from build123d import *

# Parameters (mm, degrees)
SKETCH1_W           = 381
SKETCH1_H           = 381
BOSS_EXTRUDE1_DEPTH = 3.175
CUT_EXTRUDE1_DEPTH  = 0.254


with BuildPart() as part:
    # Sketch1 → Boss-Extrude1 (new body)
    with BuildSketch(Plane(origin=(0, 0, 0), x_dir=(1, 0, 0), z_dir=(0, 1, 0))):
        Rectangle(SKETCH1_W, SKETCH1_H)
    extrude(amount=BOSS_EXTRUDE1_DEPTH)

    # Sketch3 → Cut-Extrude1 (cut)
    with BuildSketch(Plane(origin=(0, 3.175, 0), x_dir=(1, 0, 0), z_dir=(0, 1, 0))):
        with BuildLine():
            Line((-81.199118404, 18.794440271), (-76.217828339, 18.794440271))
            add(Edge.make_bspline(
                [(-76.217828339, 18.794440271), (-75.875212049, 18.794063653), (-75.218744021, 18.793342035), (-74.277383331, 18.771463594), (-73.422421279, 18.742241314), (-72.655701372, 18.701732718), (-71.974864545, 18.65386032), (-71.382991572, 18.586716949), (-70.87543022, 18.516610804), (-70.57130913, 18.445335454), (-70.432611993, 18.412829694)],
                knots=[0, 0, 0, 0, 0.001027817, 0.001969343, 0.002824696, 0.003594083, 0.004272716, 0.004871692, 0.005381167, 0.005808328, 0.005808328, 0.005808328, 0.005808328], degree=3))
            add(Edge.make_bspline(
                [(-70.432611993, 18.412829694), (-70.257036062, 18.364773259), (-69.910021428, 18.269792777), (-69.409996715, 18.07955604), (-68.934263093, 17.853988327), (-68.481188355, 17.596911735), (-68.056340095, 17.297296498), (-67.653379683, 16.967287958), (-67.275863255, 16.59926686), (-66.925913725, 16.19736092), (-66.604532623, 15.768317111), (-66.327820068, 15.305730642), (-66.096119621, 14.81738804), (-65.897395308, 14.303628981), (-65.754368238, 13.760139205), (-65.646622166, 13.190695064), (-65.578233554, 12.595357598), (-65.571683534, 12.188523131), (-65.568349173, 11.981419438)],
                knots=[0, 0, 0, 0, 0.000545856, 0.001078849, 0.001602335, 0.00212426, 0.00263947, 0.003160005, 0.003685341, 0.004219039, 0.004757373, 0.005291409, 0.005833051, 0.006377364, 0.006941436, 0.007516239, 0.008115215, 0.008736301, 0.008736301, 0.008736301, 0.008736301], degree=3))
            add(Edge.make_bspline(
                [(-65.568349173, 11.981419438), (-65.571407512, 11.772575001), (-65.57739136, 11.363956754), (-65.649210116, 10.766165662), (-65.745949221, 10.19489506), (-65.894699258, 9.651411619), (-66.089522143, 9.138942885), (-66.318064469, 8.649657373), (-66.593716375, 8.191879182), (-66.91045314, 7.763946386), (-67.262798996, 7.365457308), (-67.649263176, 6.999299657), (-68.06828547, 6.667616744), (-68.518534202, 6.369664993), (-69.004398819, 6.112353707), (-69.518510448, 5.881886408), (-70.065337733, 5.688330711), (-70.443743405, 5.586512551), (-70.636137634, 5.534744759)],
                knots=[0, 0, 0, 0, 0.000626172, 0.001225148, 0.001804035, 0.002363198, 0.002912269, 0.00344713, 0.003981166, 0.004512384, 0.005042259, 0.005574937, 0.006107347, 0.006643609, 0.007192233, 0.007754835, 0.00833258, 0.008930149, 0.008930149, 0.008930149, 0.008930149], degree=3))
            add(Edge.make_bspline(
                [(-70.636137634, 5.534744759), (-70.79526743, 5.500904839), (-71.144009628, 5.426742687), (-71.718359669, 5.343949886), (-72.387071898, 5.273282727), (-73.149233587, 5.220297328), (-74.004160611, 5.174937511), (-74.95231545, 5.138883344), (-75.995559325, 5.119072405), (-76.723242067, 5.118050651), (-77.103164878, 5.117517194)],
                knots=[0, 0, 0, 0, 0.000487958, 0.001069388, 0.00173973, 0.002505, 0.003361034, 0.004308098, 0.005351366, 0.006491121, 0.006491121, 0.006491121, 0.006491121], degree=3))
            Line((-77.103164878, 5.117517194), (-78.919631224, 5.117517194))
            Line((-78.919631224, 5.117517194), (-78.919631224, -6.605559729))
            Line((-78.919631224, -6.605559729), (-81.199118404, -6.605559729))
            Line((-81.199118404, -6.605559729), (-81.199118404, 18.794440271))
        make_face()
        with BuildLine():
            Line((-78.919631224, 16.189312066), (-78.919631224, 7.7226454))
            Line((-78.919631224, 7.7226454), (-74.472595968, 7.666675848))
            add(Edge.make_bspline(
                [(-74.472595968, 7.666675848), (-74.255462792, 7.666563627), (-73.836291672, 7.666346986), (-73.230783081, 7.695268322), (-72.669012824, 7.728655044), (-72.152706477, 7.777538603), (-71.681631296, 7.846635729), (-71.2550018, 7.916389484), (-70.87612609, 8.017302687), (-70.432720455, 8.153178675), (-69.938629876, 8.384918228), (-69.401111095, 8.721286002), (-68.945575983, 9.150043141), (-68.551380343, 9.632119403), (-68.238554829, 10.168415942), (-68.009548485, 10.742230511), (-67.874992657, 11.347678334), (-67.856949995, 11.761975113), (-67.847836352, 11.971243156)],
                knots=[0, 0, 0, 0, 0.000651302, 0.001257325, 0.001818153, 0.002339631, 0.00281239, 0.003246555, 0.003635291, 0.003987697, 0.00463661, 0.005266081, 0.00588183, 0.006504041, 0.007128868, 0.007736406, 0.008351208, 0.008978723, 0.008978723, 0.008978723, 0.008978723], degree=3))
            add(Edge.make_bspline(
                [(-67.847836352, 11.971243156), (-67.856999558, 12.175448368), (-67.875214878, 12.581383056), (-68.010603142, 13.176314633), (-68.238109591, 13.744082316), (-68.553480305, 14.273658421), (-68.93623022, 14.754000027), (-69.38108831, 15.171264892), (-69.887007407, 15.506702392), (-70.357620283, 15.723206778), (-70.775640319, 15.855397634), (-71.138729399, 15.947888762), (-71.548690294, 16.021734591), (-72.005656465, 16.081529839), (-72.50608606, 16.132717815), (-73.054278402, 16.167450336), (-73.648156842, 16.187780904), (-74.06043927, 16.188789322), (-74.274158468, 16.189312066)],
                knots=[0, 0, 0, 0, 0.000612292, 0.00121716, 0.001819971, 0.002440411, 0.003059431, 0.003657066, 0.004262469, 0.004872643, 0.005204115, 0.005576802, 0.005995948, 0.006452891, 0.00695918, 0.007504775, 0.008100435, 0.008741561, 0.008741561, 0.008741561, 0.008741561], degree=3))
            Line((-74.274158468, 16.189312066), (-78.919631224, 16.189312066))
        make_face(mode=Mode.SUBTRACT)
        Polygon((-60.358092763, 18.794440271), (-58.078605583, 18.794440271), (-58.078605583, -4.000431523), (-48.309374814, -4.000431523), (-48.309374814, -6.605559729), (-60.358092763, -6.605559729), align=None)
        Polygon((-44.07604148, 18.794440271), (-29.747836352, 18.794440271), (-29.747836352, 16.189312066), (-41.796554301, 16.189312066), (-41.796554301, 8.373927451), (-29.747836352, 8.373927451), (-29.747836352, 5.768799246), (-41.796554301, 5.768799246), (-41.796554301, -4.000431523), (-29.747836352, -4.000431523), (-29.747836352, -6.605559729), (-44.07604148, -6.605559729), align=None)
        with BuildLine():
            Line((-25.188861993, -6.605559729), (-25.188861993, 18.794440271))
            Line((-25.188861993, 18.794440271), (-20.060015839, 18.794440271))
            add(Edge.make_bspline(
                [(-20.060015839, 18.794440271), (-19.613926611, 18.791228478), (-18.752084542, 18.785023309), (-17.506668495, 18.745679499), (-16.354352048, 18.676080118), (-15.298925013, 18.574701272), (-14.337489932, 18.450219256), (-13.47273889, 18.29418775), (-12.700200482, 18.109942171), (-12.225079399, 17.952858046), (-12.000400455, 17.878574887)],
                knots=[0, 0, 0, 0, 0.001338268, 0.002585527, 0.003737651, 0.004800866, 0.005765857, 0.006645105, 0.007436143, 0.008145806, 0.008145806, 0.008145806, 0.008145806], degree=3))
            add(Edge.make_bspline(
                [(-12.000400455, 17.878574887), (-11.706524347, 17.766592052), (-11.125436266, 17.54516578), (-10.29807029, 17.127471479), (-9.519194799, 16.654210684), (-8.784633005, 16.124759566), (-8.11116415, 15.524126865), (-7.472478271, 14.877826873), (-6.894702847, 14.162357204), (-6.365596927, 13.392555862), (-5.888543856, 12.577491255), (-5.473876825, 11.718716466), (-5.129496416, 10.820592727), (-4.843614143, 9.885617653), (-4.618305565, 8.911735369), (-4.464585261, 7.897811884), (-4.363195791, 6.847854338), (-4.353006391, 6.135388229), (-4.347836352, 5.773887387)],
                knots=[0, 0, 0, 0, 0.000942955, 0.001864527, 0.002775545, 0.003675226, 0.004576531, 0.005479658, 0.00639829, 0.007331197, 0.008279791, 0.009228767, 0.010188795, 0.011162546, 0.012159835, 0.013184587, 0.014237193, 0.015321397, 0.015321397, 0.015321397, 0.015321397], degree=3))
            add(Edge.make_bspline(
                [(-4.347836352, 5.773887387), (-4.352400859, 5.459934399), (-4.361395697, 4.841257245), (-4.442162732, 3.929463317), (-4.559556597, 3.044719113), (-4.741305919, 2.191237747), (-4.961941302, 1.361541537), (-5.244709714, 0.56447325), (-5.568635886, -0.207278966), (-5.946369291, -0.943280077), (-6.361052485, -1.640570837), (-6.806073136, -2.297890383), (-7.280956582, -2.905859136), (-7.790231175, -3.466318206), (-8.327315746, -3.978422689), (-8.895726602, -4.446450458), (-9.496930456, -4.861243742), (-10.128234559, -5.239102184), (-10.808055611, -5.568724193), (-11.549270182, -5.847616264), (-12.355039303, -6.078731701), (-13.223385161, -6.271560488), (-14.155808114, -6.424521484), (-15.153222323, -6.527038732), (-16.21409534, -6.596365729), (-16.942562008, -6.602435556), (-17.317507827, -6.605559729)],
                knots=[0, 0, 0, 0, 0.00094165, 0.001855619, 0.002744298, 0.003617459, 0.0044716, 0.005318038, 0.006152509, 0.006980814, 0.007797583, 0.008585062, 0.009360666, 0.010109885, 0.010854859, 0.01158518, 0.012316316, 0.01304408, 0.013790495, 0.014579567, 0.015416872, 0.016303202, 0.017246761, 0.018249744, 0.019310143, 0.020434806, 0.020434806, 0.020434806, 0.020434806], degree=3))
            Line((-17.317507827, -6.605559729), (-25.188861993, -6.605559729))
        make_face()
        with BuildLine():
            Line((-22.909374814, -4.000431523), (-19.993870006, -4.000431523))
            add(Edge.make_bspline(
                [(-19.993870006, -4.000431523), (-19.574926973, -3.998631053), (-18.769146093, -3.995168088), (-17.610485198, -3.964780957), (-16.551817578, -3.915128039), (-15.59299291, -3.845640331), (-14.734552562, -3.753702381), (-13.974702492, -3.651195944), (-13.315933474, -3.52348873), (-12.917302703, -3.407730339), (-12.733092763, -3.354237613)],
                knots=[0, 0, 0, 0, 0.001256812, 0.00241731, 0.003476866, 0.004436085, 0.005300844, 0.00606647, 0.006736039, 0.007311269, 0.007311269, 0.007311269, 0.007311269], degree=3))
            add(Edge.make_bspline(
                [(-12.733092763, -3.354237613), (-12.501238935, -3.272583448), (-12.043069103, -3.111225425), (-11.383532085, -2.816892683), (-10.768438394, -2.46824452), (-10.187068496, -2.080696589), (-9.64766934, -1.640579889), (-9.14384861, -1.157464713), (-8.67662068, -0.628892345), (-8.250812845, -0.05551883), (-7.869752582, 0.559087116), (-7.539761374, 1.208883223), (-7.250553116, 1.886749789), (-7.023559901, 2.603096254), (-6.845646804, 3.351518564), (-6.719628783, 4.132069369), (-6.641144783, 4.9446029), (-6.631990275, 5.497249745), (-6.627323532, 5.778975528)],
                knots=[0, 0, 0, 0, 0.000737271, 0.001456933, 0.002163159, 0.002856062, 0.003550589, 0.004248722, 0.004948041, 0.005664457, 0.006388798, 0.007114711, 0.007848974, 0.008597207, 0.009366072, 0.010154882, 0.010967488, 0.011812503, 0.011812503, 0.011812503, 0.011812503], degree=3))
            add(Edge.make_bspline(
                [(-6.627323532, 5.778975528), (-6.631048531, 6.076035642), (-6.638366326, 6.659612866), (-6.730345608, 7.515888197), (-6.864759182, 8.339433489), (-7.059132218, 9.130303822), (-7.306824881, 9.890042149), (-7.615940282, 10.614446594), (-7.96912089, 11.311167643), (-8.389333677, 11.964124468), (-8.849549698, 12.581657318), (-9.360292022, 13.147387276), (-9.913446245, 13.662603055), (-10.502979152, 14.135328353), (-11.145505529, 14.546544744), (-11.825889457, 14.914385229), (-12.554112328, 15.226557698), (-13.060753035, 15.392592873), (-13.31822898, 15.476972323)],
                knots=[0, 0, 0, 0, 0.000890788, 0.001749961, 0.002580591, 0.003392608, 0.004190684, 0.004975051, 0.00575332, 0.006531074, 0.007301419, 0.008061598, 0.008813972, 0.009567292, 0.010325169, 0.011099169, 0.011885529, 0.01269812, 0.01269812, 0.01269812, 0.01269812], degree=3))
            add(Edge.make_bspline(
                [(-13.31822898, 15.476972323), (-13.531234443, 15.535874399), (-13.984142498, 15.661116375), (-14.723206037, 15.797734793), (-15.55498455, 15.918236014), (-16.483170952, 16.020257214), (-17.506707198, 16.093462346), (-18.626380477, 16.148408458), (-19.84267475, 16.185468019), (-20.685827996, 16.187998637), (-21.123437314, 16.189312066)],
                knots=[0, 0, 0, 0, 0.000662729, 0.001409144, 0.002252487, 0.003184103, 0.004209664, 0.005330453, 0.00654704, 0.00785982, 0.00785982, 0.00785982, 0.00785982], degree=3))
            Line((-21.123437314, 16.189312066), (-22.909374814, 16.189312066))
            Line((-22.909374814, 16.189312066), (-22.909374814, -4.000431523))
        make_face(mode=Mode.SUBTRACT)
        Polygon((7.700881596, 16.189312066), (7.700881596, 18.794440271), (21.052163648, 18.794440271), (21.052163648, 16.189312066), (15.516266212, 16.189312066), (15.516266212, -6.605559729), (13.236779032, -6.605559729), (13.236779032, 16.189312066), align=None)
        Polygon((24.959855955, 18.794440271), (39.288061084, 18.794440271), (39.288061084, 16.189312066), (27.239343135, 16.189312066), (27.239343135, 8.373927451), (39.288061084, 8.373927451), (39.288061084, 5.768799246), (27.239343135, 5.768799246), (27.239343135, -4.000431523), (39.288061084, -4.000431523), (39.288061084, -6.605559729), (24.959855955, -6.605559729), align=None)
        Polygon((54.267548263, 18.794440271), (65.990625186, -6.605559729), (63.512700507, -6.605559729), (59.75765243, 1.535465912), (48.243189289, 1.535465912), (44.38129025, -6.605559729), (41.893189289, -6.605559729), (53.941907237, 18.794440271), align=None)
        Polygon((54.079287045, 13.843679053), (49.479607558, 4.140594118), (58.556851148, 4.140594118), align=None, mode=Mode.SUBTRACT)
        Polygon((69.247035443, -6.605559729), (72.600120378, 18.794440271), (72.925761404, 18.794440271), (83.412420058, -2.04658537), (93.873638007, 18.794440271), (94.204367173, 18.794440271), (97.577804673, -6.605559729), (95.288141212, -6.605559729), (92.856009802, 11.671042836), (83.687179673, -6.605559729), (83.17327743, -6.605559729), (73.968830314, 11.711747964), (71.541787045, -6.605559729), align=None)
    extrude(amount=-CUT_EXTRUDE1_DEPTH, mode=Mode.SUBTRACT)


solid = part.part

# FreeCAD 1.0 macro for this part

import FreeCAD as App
import Part
import Sketcher
Q = App.Units.Quantity


def add_polygon(sketch, points):
    """Adds a closed chain of lines whose ends are joined by coincident constraints."""
    first, n = sketch.GeometryCount, len(points)
    for a, b in zip(points, points[1:] + points[:1]):
        sketch.addGeometry(Part.LineSegment(App.Vector(*a, 0), App.Vector(*b, 0)), False)
    for i in range(n):
        sketch.addConstraint(Sketcher.Constraint("Coincident", first + i, 2, first + (i + 1) % n, 1))

doc = App.newDocument("Part")
params = doc.addObject("Spreadsheet::Sheet", "Params")
for row, (alias, value) in enumerate([
    ("sketch1_width", "15 in"),
    ("pad1_length", "0.125 in"),
    ("pocket1_length", "0.01 in"),
], start=1):
    params.set(f"A{row}", alias)
    params.set(f"B{row}", "=" + value)
    params.setAlias(f"B{row}", alias)

body = doc.addObject("PartDesign::Body", "Body")

sketch1 = doc.addObject("Sketcher::SketchObject", "Sketch")
body.addObject(sketch1)
sketch1.AttachmentSupport = (doc.XZ_Plane, [""])
sketch1.MapMode = "FlatFace"
add_polygon(sketch1, [(-190, -190), (-190, 190), (190, 190), (190, -190)])
sketch1.addConstraint([
    Sketcher.Constraint("Vertical", 0),
    Sketcher.Constraint("Horizontal", 1),
    Sketcher.Constraint("Vertical", 2),
    Sketcher.Constraint("Horizontal", 3),
    Sketcher.Constraint("Symmetric", 0, 2, 2, 2, -1, 1),
    Sketcher.Constraint("Equal", 3, 0),
    Sketcher.Constraint("DistanceX", 1, 1, 1, 2, Q("15 in")),
])
sketch1.setExpression("Constraints[10]", "Params.sketch1_width")
pad1 = doc.addObject("PartDesign::Pad", "Pad")
body.addObject(pad1)
pad1.Profile = sketch1
pad1.setExpression("Length", "Params.pad1_length")
pad1.Reversed = True

sketch2 = doc.addObject("Sketcher::SketchObject", "Sketch001")
body.addObject(sketch2)
sketch2.AttachmentSupport = (doc.XZ_Plane, [""])
sketch2.MapMode = "FlatFace"
sketch2.AttachmentOffset = App.Placement(App.Vector(0, 0, -0.125 * 25.4), App.Rotation())
sketch2.addGeometry(Part.LineSegment(App.Vector(-76.217828, -18.79444, 0), App.Vector(-81.199118, -18.79444, 0)), False)
sketch2.addGeometry(Part.LineSegment(App.Vector(-81.199118, -18.79444, 0), App.Vector(-81.199118, 6.60556, 0)), False)
sketch2.addGeometry(Part.LineSegment(App.Vector(-81.199118, 6.60556, 0), App.Vector(-78.919631, 6.60556, 0)), False)
sketch2.addGeometry(Part.LineSegment(App.Vector(-78.919631, 6.60556, 0), App.Vector(-78.919631, -5.117517, 0)), False)
sketch2.addGeometry(Part.LineSegment(App.Vector(-78.919631, -5.117517, 0), App.Vector(-77.103165, -5.117517, 0)), False)
sketch2.addGeometry(Part.BSplineCurve([App.Vector(-70.636138, -5.534745, 0), App.Vector(-70.795267, -5.500905, 0), App.Vector(-71.14401, -5.426743, 0), App.Vector(-71.71836, -5.34395, 0), App.Vector(-72.387072, -5.273283, 0), App.Vector(-73.149234, -5.220297, 0), App.Vector(-74.004161, -5.174938, 0), App.Vector(-74.952315, -5.138883, 0), App.Vector(-75.995559, -5.119072, 0), App.Vector(-76.723242, -5.118051, 0), App.Vector(-77.103165, -5.117517, 0)], [4, 1, 1, 1, 1, 1, 1, 1, 4], [0, 0.000487958, 0.001069388, 0.00173973, 0.002505, 0.003361034, 0.004308098, 0.005351366, 0.006491121], False, 3, [1, 1, 1, 1, 1, 1, 1, 1, 1, 1, 1], False), False)
sketch2.addGeometry(Part.BSplineCurve([App.Vector(-65.568349, -11.981419, 0), App.Vector(-65.571408, -11.772575, 0), App.Vector(-65.577391, -11.363957, 0), App.Vector(-65.64921, -10.766166, 0), App.Vector(-65.745949, -10.194895, 0), App.Vector(-65.894699, -9.651412, 0), App.Vector(-66.089522, -9.138943, 0), App.Vector(-66.318064, -8.649657, 0), App.Vector(-66.593716, -8.191879, 0), App.Vector(-66.910453, -7.763946, 0), App.Vector(-67.262799, -7.365457, 0), App.Vector(-67.649263, -6.9993, 0), App.Vector(-68.068285, -6.667617, 0), App.Vector(-68.518534, -6.369665, 0), App.Vector(-69.004399, -6.112354, 0), App.Vector(-69.51851, -5.881886, 0), App.Vector(-70.065338, -5.688331, 0), App.Vector(-70.443743, -5.586513, 0), App.Vector(-70.636138, -5.534745, 0)], [4, 1, 1, 1, 1, 1, 1, 1, 1, 1, 1, 1, 1, 1, 1, 1, 4], [0, 0.000626172, 0.001225148, 0.001804035, 0.002363198, 0.002912269, 0.00344713, 0.003981166, 0.004512384, 0.005042259, 0.005574937, 0.006107347, 0.006643609, 0.007192233, 0.007754835, 0.00833258, 0.008930149], False, 3, [1, 1, 1, 1, 1, 1, 1, 1, 1, 1, 1, 1, 1, 1, 1, 1, 1, 1, 1], False), False)
sketch2.addGeometry(Part.BSplineCurve([App.Vector(-70.432612, -18.41283, 0), App.Vector(-70.257036, -18.364773, 0), App.Vector(-69.910021, -18.269793, 0), App.Vector(-69.409997, -18.079556, 0), App.Vector(-68.934263, -17.853988, 0), App.Vector(-68.481188, -17.596912, 0), App.Vector(-68.05634, -17.297296, 0), App.Vector(-67.65338, -16.967288, 0), App.Vector(-67.275863, -16.599267, 0), App.Vector(-66.925914, -16.197361, 0), App.Vector(-66.604533, -15.768317, 0), App.Vector(-66.32782, -15.305731, 0), App.Vector(-66.09612, -14.817388, 0), App.Vector(-65.897395, -14.303629, 0), App.Vector(-65.754368, -13.760139, 0), App.Vector(-65.646622, -13.190695, 0), App.Vector(-65.578234, -12.595358, 0), App.Vector(-65.571684, -12.188523, 0), App.Vector(-65.568349, -11.981419, 0)], [4, 1, 1, 1, 1, 1, 1, 1, 1, 1, 1, 1, 1, 1, 1, 1, 4], [0, 0.000545856, 0.001078849, 0.001602335, 0.00212426, 0.00263947, 0.003160005, 0.003685341, 0.004219039, 0.004757373, 0.005291409, 0.005833051, 0.006377364, 0.006941436, 0.007516239, 0.008115215, 0.008736301], False, 3, [1, 1, 1, 1, 1, 1, 1, 1, 1, 1, 1, 1, 1, 1, 1, 1, 1, 1, 1], False), False)
sketch2.addGeometry(Part.BSplineCurve([App.Vector(-76.217828, -18.79444, 0), App.Vector(-75.875212, -18.794064, 0), App.Vector(-75.218744, -18.793342, 0), App.Vector(-74.277383, -18.771464, 0), App.Vector(-73.422421, -18.742241, 0), App.Vector(-72.655701, -18.701733, 0), App.Vector(-71.974865, -18.65386, 0), App.Vector(-71.382992, -18.586717, 0), App.Vector(-70.87543, -18.516611, 0), App.Vector(-70.571309, -18.445335, 0), App.Vector(-70.432612, -18.41283, 0)], [4, 1, 1, 1, 1, 1, 1, 1, 4], [0, 0.001027817, 0.001969343, 0.002824696, 0.003594083, 0.004272716, 0.004871692, 0.005381167, 0.005808328], False, 3, [1, 1, 1, 1, 1, 1, 1, 1, 1, 1, 1], False), False)
sketch2.addGeometry(Part.LineSegment(App.Vector(-78.919631, -16.189312, 0), App.Vector(-74.274158, -16.189312, 0)), False)
sketch2.addGeometry(Part.BSplineCurve([App.Vector(-67.847836, -11.971243, 0), App.Vector(-67.857, -12.175448, 0), App.Vector(-67.875215, -12.581383, 0), App.Vector(-68.010603, -13.176315, 0), App.Vector(-68.23811, -13.744082, 0), App.Vector(-68.55348, -14.273658, 0), App.Vector(-68.93623, -14.754, 0), App.Vector(-69.381088, -15.171265, 0), App.Vector(-69.887007, -15.506702, 0), App.Vector(-70.35762, -15.723207, 0), App.Vector(-70.77564, -15.855398, 0), App.Vector(-71.138729, -15.947889, 0), App.Vector(-71.54869, -16.021735, 0), App.Vector(-72.005656, -16.08153, 0), App.Vector(-72.506086, -16.132718, 0), App.Vector(-73.054278, -16.16745, 0), App.Vector(-73.648157, -16.187781, 0), App.Vector(-74.060439, -16.188789, 0), App.Vector(-74.274158, -16.189312, 0)], [4, 1, 1, 1, 1, 1, 1, 1, 1, 1, 1, 1, 1, 1, 1, 1, 4], [0, 0.000612292, 0.00121716, 0.001819971, 0.002440411, 0.003059431, 0.003657066, 0.004262469, 0.004872643, 0.005204115, 0.005576802, 0.005995948, 0.006452891, 0.00695918, 0.007504775, 0.008100435, 0.008741561], False, 3, [1, 1, 1, 1, 1, 1, 1, 1, 1, 1, 1, 1, 1, 1, 1, 1, 1, 1, 1], False), False)
sketch2.addGeometry(Part.BSplineCurve([App.Vector(-74.472596, -7.666676, 0), App.Vector(-74.255463, -7.666564, 0), App.Vector(-73.836292, -7.666347, 0), App.Vector(-73.230783, -7.695268, 0), App.Vector(-72.669013, -7.728655, 0), App.Vector(-72.152706, -7.777539, 0), App.Vector(-71.681631, -7.846636, 0), App.Vector(-71.255002, -7.916389, 0), App.Vector(-70.876126, -8.017303, 0), App.Vector(-70.43272, -8.153179, 0), App.Vector(-69.93863, -8.384918, 0), App.Vector(-69.401111, -8.721286, 0), App.Vector(-68.945576, -9.150043, 0), App.Vector(-68.55138, -9.632119, 0), App.Vector(-68.238555, -10.168416, 0), App.Vector(-68.009548, -10.742231, 0), App.Vector(-67.874993, -11.347678, 0), App.Vector(-67.85695, -11.761975, 0), App.Vector(-67.847836, -11.971243, 0)], [4, 1, 1, 1, 1, 1, 1, 1, 1, 1, 1, 1, 1, 1, 1, 1, 4], [0, 0.000651302, 0.001257325, 0.001818153, 0.002339631, 0.00281239, 0.003246555, 0.003635291, 0.003987697, 0.00463661, 0.005266081, 0.00588183, 0.006504041, 0.007128868, 0.007736406, 0.008351208, 0.008978723], False, 3, [1, 1, 1, 1, 1, 1, 1, 1, 1, 1, 1, 1, 1, 1, 1, 1, 1, 1, 1], False), False)
sketch2.addGeometry(Part.LineSegment(App.Vector(-74.472596, -7.666676, 0), App.Vector(-78.919631, -7.722645, 0)), False)
sketch2.addGeometry(Part.LineSegment(App.Vector(-78.919631, -7.722645, 0), App.Vector(-78.919631, -16.189312, 0)), False)
add_polygon(sketch2, [(-58.078606, -18.79444), (-60.358093, -18.79444), (-60.358093, 6.60556), (-48.309375, 6.60556), (-48.309375, 4.000432), (-58.078606, 4.000432)])
add_polygon(sketch2, [(-29.747836, -18.79444), (-44.076041, -18.79444), (-44.076041, 6.60556), (-29.747836, 6.60556), (-29.747836, 4.000432), (-41.796554, 4.000432), (-41.796554, -5.768799), (-29.747836, -5.768799), (-29.747836, -8.373927), (-41.796554, -8.373927), (-41.796554, -16.189312), (-29.747836, -16.189312)])
sketch2.addGeometry(Part.LineSegment(App.Vector(-25.188862, -18.79444, 0), App.Vector(-25.188862, 6.60556, 0)), False)
sketch2.addGeometry(Part.LineSegment(App.Vector(-25.188862, 6.60556, 0), App.Vector(-17.317508, 6.60556, 0)), False)
sketch2.addGeometry(Part.BSplineCurve([App.Vector(-4.347836, -5.773887, 0), App.Vector(-4.352401, -5.459934, 0), App.Vector(-4.361396, -4.841257, 0), App.Vector(-4.442163, -3.929463, 0), App.Vector(-4.559557, -3.044719, 0), App.Vector(-4.741306, -2.191238, 0), App.Vector(-4.961941, -1.361542, 0), App.Vector(-5.24471, -0.564473, 0), App.Vector(-5.568636, 0.207279, 0), App.Vector(-5.946369, 0.94328, 0), App.Vector(-6.361052, 1.640571, 0), App.Vector(-6.806073, 2.29789, 0), App.Vector(-7.280957, 2.905859, 0), App.Vector(-7.790231, 3.466318, 0), App.Vector(-8.327316, 3.978423, 0), App.Vector(-8.895727, 4.44645, 0), App.Vector(-9.49693, 4.861244, 0), App.Vector(-10.128235, 5.239102, 0), App.Vector(-10.808056, 5.568724, 0), App.Vector(-11.54927, 5.847616, 0), App.Vector(-12.355039, 6.078732, 0), App.Vector(-13.223385, 6.27156, 0), App.Vector(-14.155808, 6.424521, 0), App.Vector(-15.153222, 6.527039, 0), App.Vector(-16.214095, 6.596366, 0), App.Vector(-16.942562, 6.602436, 0), App.Vector(-17.317508, 6.60556, 0)], [4, 1, 1, 1, 1, 1, 1, 1, 1, 1, 1, 1, 1, 1, 1, 1, 1, 1, 1, 1, 1, 1, 1, 1, 4], [0, 0.00094165, 0.001855619, 0.002744298, 0.003617459, 0.0044716, 0.005318038, 0.006152509, 0.006980814, 0.007797583, 0.008585062, 0.009360666, 0.010109885, 0.010854859, 0.01158518, 0.012316316, 0.01304408, 0.013790495, 0.014579567, 0.015416872, 0.016303202, 0.017246761, 0.018249744, 0.019310143, 0.020434806], False, 3, [1, 1, 1, 1, 1, 1, 1, 1, 1, 1, 1, 1, 1, 1, 1, 1, 1, 1, 1, 1, 1, 1, 1, 1, 1, 1, 1], False), False)
sketch2.addGeometry(Part.BSplineCurve([App.Vector(-12.0004, -17.878575, 0), App.Vector(-11.706524, -17.766592, 0), App.Vector(-11.125436, -17.545166, 0), App.Vector(-10.29807, -17.127471, 0), App.Vector(-9.519195, -16.654211, 0), App.Vector(-8.784633, -16.12476, 0), App.Vector(-8.111164, -15.524127, 0), App.Vector(-7.472478, -14.877827, 0), App.Vector(-6.894703, -14.162357, 0), App.Vector(-6.365597, -13.392556, 0), App.Vector(-5.888544, -12.577491, 0), App.Vector(-5.473877, -11.718716, 0), App.Vector(-5.129496, -10.820593, 0), App.Vector(-4.843614, -9.885618, 0), App.Vector(-4.618306, -8.911735, 0), App.Vector(-4.464585, -7.897812, 0), App.Vector(-4.363196, -6.847854, 0), App.Vector(-4.353006, -6.135388, 0), App.Vector(-4.347836, -5.773887, 0)], [4, 1, 1, 1, 1, 1, 1, 1, 1, 1, 1, 1, 1, 1, 1, 1, 4], [0, 0.000942955, 0.001864527, 0.002775545, 0.003675226, 0.004576531, 0.005479658, 0.00639829, 0.007331197, 0.008279791, 0.009228767, 0.010188795, 0.011162546, 0.012159835, 0.013184587, 0.014237193, 0.015321397], False, 3, [1, 1, 1, 1, 1, 1, 1, 1, 1, 1, 1, 1, 1, 1, 1, 1, 1, 1, 1], False), False)
sketch2.addGeometry(Part.BSplineCurve([App.Vector(-20.060016, -18.79444, 0), App.Vector(-19.613927, -18.791228, 0), App.Vector(-18.752085, -18.785023, 0), App.Vector(-17.506668, -18.745679, 0), App.Vector(-16.354352, -18.67608, 0), App.Vector(-15.298925, -18.574701, 0), App.Vector(-14.33749, -18.450219, 0), App.Vector(-13.472739, -18.294188, 0), App.Vector(-12.7002, -18.109942, 0), App.Vector(-12.225079, -17.952858, 0), App.Vector(-12.0004, -17.878575, 0)], [4, 1, 1, 1, 1, 1, 1, 1, 4], [0, 0.001338268, 0.002585527, 0.003737651, 0.004800866, 0.005765857, 0.006645105, 0.007436143, 0.008145806], False, 3, [1, 1, 1, 1, 1, 1, 1, 1, 1, 1, 1], False), False)
sketch2.addGeometry(Part.LineSegment(App.Vector(-20.060016, -18.79444, 0), App.Vector(-25.188862, -18.79444, 0)), False)
sketch2.addGeometry(Part.LineSegment(App.Vector(-22.909375, 4.000432, 0), App.Vector(-22.909375, -16.189312, 0)), False)
sketch2.addGeometry(Part.LineSegment(App.Vector(-22.909375, -16.189312, 0), App.Vector(-21.123437, -16.189312, 0)), False)
sketch2.addGeometry(Part.BSplineCurve([App.Vector(-13.318229, -15.476972, 0), App.Vector(-13.531234, -15.535874, 0), App.Vector(-13.984142, -15.661116, 0), App.Vector(-14.723206, -15.797735, 0), App.Vector(-15.554985, -15.918236, 0), App.Vector(-16.483171, -16.020257, 0), App.Vector(-17.506707, -16.093462, 0), App.Vector(-18.62638, -16.148408, 0), App.Vector(-19.842675, -16.185468, 0), App.Vector(-20.685828, -16.187999, 0), App.Vector(-21.123437, -16.189312, 0)], [4, 1, 1, 1, 1, 1, 1, 1, 4], [0, 0.000662729, 0.001409144, 0.002252487, 0.003184103, 0.004209664, 0.005330453, 0.00654704, 0.00785982], False, 3, [1, 1, 1, 1, 1, 1, 1, 1, 1, 1, 1], False), False)
sketch2.addGeometry(Part.BSplineCurve([App.Vector(-6.627324, -5.778976, 0), App.Vector(-6.631049, -6.076036, 0), App.Vector(-6.638366, -6.659613, 0), App.Vector(-6.730346, -7.515888, 0), App.Vector(-6.864759, -8.339433, 0), App.Vector(-7.059132, -9.130304, 0), App.Vector(-7.306825, -9.890042, 0), App.Vector(-7.61594, -10.614447, 0), App.Vector(-7.969121, -11.311168, 0), App.Vector(-8.389334, -11.964124, 0), App.Vector(-8.84955, -12.581657, 0), App.Vector(-9.360292, -13.147387, 0), App.Vector(-9.913446, -13.662603, 0), App.Vector(-10.502979, -14.135328, 0), App.Vector(-11.145506, -14.546545, 0), App.Vector(-11.825889, -14.914385, 0), App.Vector(-12.554112, -15.226558, 0), App.Vector(-13.060753, -15.392593, 0), App.Vector(-13.318229, -15.476972, 0)], [4, 1, 1, 1, 1, 1, 1, 1, 1, 1, 1, 1, 1, 1, 1, 1, 4], [0, 0.000890788, 0.001749961, 0.002580591, 0.003392608, 0.004190684, 0.004975051, 0.00575332, 0.006531074, 0.007301419, 0.008061598, 0.008813972, 0.009567292, 0.010325169, 0.011099169, 0.011885529, 0.01269812], False, 3, [1, 1, 1, 1, 1, 1, 1, 1, 1, 1, 1, 1, 1, 1, 1, 1, 1, 1, 1], False), False)
sketch2.addGeometry(Part.BSplineCurve([App.Vector(-12.733093, 3.354238, 0), App.Vector(-12.501239, 3.272583, 0), App.Vector(-12.043069, 3.111225, 0), App.Vector(-11.383532, 2.816893, 0), App.Vector(-10.768438, 2.468245, 0), App.Vector(-10.187068, 2.080697, 0), App.Vector(-9.647669, 1.64058, 0), App.Vector(-9.143849, 1.157465, 0), App.Vector(-8.676621, 0.628892, 0), App.Vector(-8.250813, 0.055519, 0), App.Vector(-7.869753, -0.559087, 0), App.Vector(-7.539761, -1.208883, 0), App.Vector(-7.250553, -1.88675, 0), App.Vector(-7.02356, -2.603096, 0), App.Vector(-6.845647, -3.351519, 0), App.Vector(-6.719629, -4.132069, 0), App.Vector(-6.641145, -4.944603, 0), App.Vector(-6.63199, -5.49725, 0), App.Vector(-6.627324, -5.778976, 0)], [4, 1, 1, 1, 1, 1, 1, 1, 1, 1, 1, 1, 1, 1, 1, 1, 4], [0, 0.000737271, 0.001456933, 0.002163159, 0.002856062, 0.003550589, 0.004248722, 0.004948041, 0.005664457, 0.006388798, 0.007114711, 0.007848974, 0.008597207, 0.009366072, 0.010154882, 0.010967488, 0.011812503], False, 3, [1, 1, 1, 1, 1, 1, 1, 1, 1, 1, 1, 1, 1, 1, 1, 1, 1, 1, 1], False), False)
sketch2.addGeometry(Part.BSplineCurve([App.Vector(-19.99387, 4.000432, 0), App.Vector(-19.574927, 3.998631, 0), App.Vector(-18.769146, 3.995168, 0), App.Vector(-17.610485, 3.964781, 0), App.Vector(-16.551818, 3.915128, 0), App.Vector(-15.592993, 3.84564, 0), App.Vector(-14.734553, 3.753702, 0), App.Vector(-13.974702, 3.651196, 0), App.Vector(-13.315933, 3.523489, 0), App.Vector(-12.917303, 3.40773, 0), App.Vector(-12.733093, 3.354238, 0)], [4, 1, 1, 1, 1, 1, 1, 1, 4], [0, 0.001256812, 0.00241731, 0.003476866, 0.004436085, 0.005300844, 0.00606647, 0.006736039, 0.007311269], False, 3, [1, 1, 1, 1, 1, 1, 1, 1, 1, 1, 1], False), False)
sketch2.addGeometry(Part.LineSegment(App.Vector(-19.99387, 4.000432, 0), App.Vector(-22.909375, 4.000432, 0)), False)
add_polygon(sketch2, [(7.700882, -18.79444), (7.700882, -16.189312), (13.236779, -16.189312), (13.236779, 6.60556), (15.516266, 6.60556), (15.516266, -16.189312), (21.052164, -16.189312), (21.052164, -18.79444)])
add_polygon(sketch2, [(39.288061, -18.79444), (24.959856, -18.79444), (24.959856, 6.60556), (39.288061, 6.60556), (39.288061, 4.000432), (27.239343, 4.000432), (27.239343, -5.768799), (39.288061, -5.768799), (39.288061, -8.373927), (27.239343, -8.373927), (27.239343, -16.189312), (39.288061, -16.189312)])
add_polygon(sketch2, [(65.990625, 6.60556), (54.267548, -18.79444), (53.941907, -18.79444), (41.893189, 6.60556), (44.38129, 6.60556), (48.243189, -1.535466), (59.757652, -1.535466), (63.512701, 6.60556)])
add_polygon(sketch2, [(54.079287, -13.843679), (58.556851, -4.140594), (49.479608, -4.140594)])
add_polygon(sketch2, [(72.60012, -18.79444), (69.247035, 6.60556), (71.541787, 6.60556), (73.96883, -11.711748), (83.173277, 6.60556), (83.68718, 6.60556), (92.85601, -11.671043), (95.288141, 6.60556), (97.577805, 6.60556), (94.204367, -18.79444), (93.873638, -18.79444), (83.41242, 2.046585), (72.925761, -18.79444)])
sketch2.addConstraint([
    Sketcher.Constraint("Block", 5),
    Sketcher.Constraint("Block", 6),
    Sketcher.Constraint("Block", 7),
    Sketcher.Constraint("Block", 8),
    Sketcher.Constraint("Block", 10),
    Sketcher.Constraint("Block", 11),
    Sketcher.Constraint("Block", 34),
    Sketcher.Constraint("Block", 35),
    Sketcher.Constraint("Block", 36),
    Sketcher.Constraint("Block", 40),
    Sketcher.Constraint("Block", 41),
    Sketcher.Constraint("Block", 42),
    Sketcher.Constraint("Block", 43),
    Sketcher.Constraint("Coincident", 0, 2, 1, 1),
    Sketcher.Constraint("Coincident", 1, 2, 2, 1),
    Sketcher.Constraint("Coincident", 2, 2, 3, 1),
    Sketcher.Constraint("Coincident", 3, 2, 4, 1),
    Sketcher.Constraint("Coincident", 4, 2, 5, 2),
    Sketcher.Constraint("Coincident", 8, 1, 0, 1),
    Sketcher.Constraint("Coincident", 9, 2, 10, 2),
    Sketcher.Constraint("Coincident", 11, 1, 12, 1),
    Sketcher.Constraint("Coincident", 12, 2, 13, 1),
    Sketcher.Constraint("Coincident", 13, 2, 9, 1),
    Sketcher.Constraint("Coincident", 32, 2, 33, 1),
    Sketcher.Constraint("Coincident", 33, 2, 34, 2),
    Sketcher.Constraint("Coincident", 36, 1, 37, 1),
    Sketcher.Constraint("Coincident", 37, 2, 32, 1),
    Sketcher.Constraint("Coincident", 38, 2, 39, 1),
    Sketcher.Constraint("Coincident", 39, 2, 40, 2),
    Sketcher.Constraint("Coincident", 43, 1, 44, 1),
    Sketcher.Constraint("Coincident", 44, 2, 38, 1),
    Sketcher.Constraint("Horizontal", 0),
    Sketcher.Constraint("Vertical", 1),
    Sketcher.Constraint("Horizontal", 2),
    Sketcher.Constraint("Vertical", 3),
    Sketcher.Constraint("Horizontal", 4),
    Sketcher.Constraint("Horizontal", 9),
    Sketcher.Constraint("Vertical", 13),
    Sketcher.Constraint("Horizontal", 14),
    Sketcher.Constraint("Vertical", 15),
    Sketcher.Constraint("Horizontal", 16),
    Sketcher.Constraint("Vertical", 17),
    Sketcher.Constraint("Horizontal", 18),
    Sketcher.Constraint("Vertical", 19),
    Sketcher.Constraint("Horizontal", 20),
    Sketcher.Constraint("Vertical", 21),
    Sketcher.Constraint("Horizontal", 22),
    Sketcher.Constraint("Vertical", 23),
    Sketcher.Constraint("Horizontal", 24),
    Sketcher.Constraint("Vertical", 25),
    Sketcher.Constraint("Horizontal", 26),
    Sketcher.Constraint("Vertical", 27),
    Sketcher.Constraint("Horizontal", 28),
    Sketcher.Constraint("Vertical", 29),
    Sketcher.Constraint("Horizontal", 30),
    Sketcher.Constraint("Vertical", 31),
    Sketcher.Constraint("Vertical", 32),
    Sketcher.Constraint("Horizontal", 33),
    Sketcher.Constraint("Horizontal", 37),
    Sketcher.Constraint("Vertical", 38),
    Sketcher.Constraint("Horizontal", 39),
    Sketcher.Constraint("Horizontal", 44),
    Sketcher.Constraint("Vertical", 45),
    Sketcher.Constraint("Horizontal", 46),
    Sketcher.Constraint("Vertical", 47),
    Sketcher.Constraint("Horizontal", 48),
    Sketcher.Constraint("Vertical", 49),
    Sketcher.Constraint("Horizontal", 50),
    Sketcher.Constraint("Vertical", 51),
    Sketcher.Constraint("Horizontal", 52),
    Sketcher.Constraint("Horizontal", 53),
    Sketcher.Constraint("Vertical", 54),
    Sketcher.Constraint("Horizontal", 55),
    Sketcher.Constraint("Vertical", 56),
    Sketcher.Constraint("Horizontal", 57),
    Sketcher.Constraint("Vertical", 58),
    Sketcher.Constraint("Horizontal", 59),
    Sketcher.Constraint("Vertical", 60),
    Sketcher.Constraint("Horizontal", 61),
    Sketcher.Constraint("Vertical", 62),
    Sketcher.Constraint("Horizontal", 63),
    Sketcher.Constraint("Vertical", 64),
    Sketcher.Constraint("Horizontal", 66),
    Sketcher.Constraint("Horizontal", 68),
    Sketcher.Constraint("Horizontal", 70),
    Sketcher.Constraint("Horizontal", 72),
    Sketcher.Constraint("Horizontal", 74),
    Sketcher.Constraint("Horizontal", 77),
    Sketcher.Constraint("Horizontal", 80),
    Sketcher.Constraint("Horizontal", 83),
    Sketcher.Constraint("Horizontal", 85),
    Sketcher.Constraint("Horizontal", 88),
    Sketcher.Constraint("Horizontal", 0, 2, 14, 2),
    Sketcher.Constraint("Horizontal", 2, 2, 15, 2),
    Sketcher.Constraint("Horizontal", 19, 2, 20, 2),
    Sketcher.Constraint("Horizontal", 16, 2, 21, 2),
    Sketcher.Constraint("Horizontal", 18, 2, 23, 2),
    Sketcher.Constraint("Horizontal", 13, 2, 29, 2),
    Sketcher.Constraint("Horizontal", 22, 2, 32, 2),
    Sketcher.Constraint("Horizontal", 24, 2, 44, 2),
    Sketcher.Constraint("Horizontal", 39, 2, 45, 2),
    Sketcher.Constraint("Horizontal", 33, 2, 47, 2),
    Sketcher.Constraint("Horizontal", 46, 2, 49, 2),
    Sketcher.Constraint("Horizontal", 37, 2, 51, 2),
    Sketcher.Constraint("Horizontal", 52, 2, 53, 2),
    Sketcher.Constraint("Horizontal", 48, 2, 54, 2),
    Sketcher.Constraint("Horizontal", 44, 2, 56, 2),
    Sketcher.Constraint("Horizontal", 26, 2, 58, 2),
    Sketcher.Constraint("Horizontal", 28, 2, 60, 2),
    Sketcher.Constraint("Horizontal", 50, 2, 62, 2),
    Sketcher.Constraint("Horizontal", 64, 2, 65, 2),
    Sketcher.Constraint("Horizontal", 55, 2, 67, 2),
    Sketcher.Constraint("Horizontal", 68, 2, 71, 2),
    Sketcher.Constraint("Horizontal", 72, 2, 76, 2),
    Sketcher.Constraint("Horizontal", 77, 2, 79, 2),
    Sketcher.Constraint("Horizontal", 80, 2, 82, 2),
    Sketcher.Constraint("Horizontal", 66, 2, 84, 2),
    Sketcher.Constraint("Horizontal", 85, 2, 87, 2),
    Sketcher.Constraint("Vertical", 3, 2, 12, 2),
    Sketcher.Constraint("Vertical", 23, 2, 26, 2),
    Sketcher.Constraint("Vertical", 25, 2, 28, 2),
    Sketcher.Constraint("Vertical", 27, 2, 30, 2),
    Sketcher.Constraint("Vertical", 56, 2, 59, 2),
    Sketcher.Constraint("Vertical", 58, 2, 61, 2),
    Sketcher.Constraint("Vertical", 60, 2, 63, 2),
    Sketcher.Constraint("Equal", 2, 14),
    Sketcher.Constraint("Equal", 16, 24),
    Sketcher.Constraint("Equal", 14, 48),
    Sketcher.Constraint("Equal", 46, 50),
    Sketcher.Constraint("Equal", 22, 53),
    Sketcher.Constraint("Equal", 30, 57),
    Sketcher.Constraint("Equal", 66, 88),
    Sketcher.Constraint("Equal", 18, 25),
    Sketcher.Constraint("Equal", 23, 27),
    Sketcher.Constraint("Angle", 82, Q("82.419985 deg")),
    Sketcher.Constraint("DistanceX", 68, 1, 68, 2, 2.488101),
    Sketcher.Constraint("DistanceX", -1, 1, 71, 2, Q("2.5005 in")),
    Sketcher.Constraint("Distance", 78, 18.4774),
    Sketcher.Constraint("DistanceX", 0, 2, 0, 1, 4.98129),
    Sketcher.Constraint("DistanceX", 18, 2, 18, 1, 9.769231),
    Sketcher.Constraint("DistanceX", 66, 2, 66, 1, 0.325641),
    Sketcher.Constraint("DistanceX", 77, 1, 77, 2, 2.294752),
    Sketcher.Constraint("DistanceX", 85, 2, 85, 1, 0.330729),
    Sketcher.Constraint("Distance", 65, 27.97482),
    Sketcher.Constraint("Distance", 69, 9.010581),
    Sketcher.Constraint("Distance", 82, 18.437719),
    Sketcher.Constraint("Distance", 84, 25.623038),
    Sketcher.Constraint("Distance", 87, 23.330631),
    Sketcher.Constraint("DistanceX", 2, 1, 2, 2, 2.279487),
    Sketcher.Constraint("DistanceX", 20, 2, 20, 1, 14.328205),
    Sketcher.Constraint("DistanceX", 33, 1, 33, 2, 7.871354),
    Sketcher.Constraint("DistanceX", 39, 1, 39, 2, 1.785937),
    Sketcher.Constraint("DistanceX", 46, 1, 46, 2, 5.535897),
    Sketcher.Constraint("DistanceX", 70, 1, 70, 2, 11.514463),
    Sketcher.Constraint("DistanceX", 72, 1, 72, 2, 2.477925),
    Sketcher.Constraint("DistanceX", 74, 2, 74, 1, 9.077244),
    Sketcher.Constraint("DistanceX", 80, 1, 80, 2, 0.513902),
    Sketcher.Constraint("DistanceX", 83, 1, 83, 2, 2.289663),
    Sketcher.Constraint("DistanceY", 13, 2, 13, 1, 8.466667),
    Sketcher.Constraint("DistanceX", 20, 2, -1, 1, 44.076041),
    Sketcher.Constraint("DistanceX", -1, 1, 45, 2, 7.700882),
    Sketcher.Constraint("DistanceX", -1, 1, 55, 2, 39.288061),
    Sketcher.Constraint("DistanceX", -1, 1, 67, 2, 41.893189),
    Sketcher.Constraint("DistanceX", -1, 1, 69, 2, 48.243189),
    Sketcher.Constraint("DistanceX", -1, 1, 73, 2, 58.556851),
    Sketcher.Constraint("DistanceY", 75, 2, -1, 1, 13.843679),
    Sketcher.Constraint("DistanceX", -1, 1, 78, 2, 73.96883),
    Sketcher.Constraint("DistanceX", -1, 1, 80, 2, 83.68718),
    Sketcher.Constraint("DistanceX", -1, 1, 81, 2, 92.85601),
    Sketcher.Constraint("DistanceX", -1, 1, 86, 2, 83.41242),
    Sketcher.Constraint("DistanceX", -1, 1, 87, 2, 72.925761),
    Sketcher.Constraint("Distance", 73, 10.686367),
    Sketcher.Constraint("Distance", 75, 10.738105),
    Sketcher.Constraint("Distance", 76, 25.620366),
    Sketcher.Constraint("DistanceX", 14, 2, -1, 1, 60.358093),
])
pocket1 = doc.addObject("PartDesign::Pocket", "Pocket")
body.addObject(pocket1)
pocket1.Profile = sketch2
pocket1.setExpression("Length", "Params.pocket1_length")
pocket1.Reversed = True

doc.recompute()
